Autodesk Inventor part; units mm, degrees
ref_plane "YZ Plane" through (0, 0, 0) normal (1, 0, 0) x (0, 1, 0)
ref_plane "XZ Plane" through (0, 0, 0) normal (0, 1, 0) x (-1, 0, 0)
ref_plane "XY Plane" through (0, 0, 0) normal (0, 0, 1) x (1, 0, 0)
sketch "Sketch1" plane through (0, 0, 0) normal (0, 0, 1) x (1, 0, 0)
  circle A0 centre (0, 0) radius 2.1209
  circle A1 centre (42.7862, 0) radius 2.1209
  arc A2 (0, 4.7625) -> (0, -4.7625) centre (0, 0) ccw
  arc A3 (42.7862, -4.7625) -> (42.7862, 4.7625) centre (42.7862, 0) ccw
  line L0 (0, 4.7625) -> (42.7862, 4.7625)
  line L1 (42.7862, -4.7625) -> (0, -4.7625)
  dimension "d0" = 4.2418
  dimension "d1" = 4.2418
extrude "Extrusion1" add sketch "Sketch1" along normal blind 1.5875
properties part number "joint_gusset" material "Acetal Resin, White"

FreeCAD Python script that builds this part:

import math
import FreeCAD as App
import Part
import Sketcher
from FreeCAD import Vector
Q = App.Units.Quantity

doc = App.newDocument("Part")
body = doc.addObject("PartDesign::Body", "Body")

sketch1 = body.newObject("Sketcher::SketchObject", "Sketch")
sketch1.AttachmentSupport = (doc.getObject("XY_Plane"), [""])
sketch1.MapMode = "FlatFace"
sketch1.addGeometry([
    Part.LineSegment(Vector(42.8, 4.8, 0), Vector(0, 4.8, 0)),
    Part.ArcOfCircle(Part.Circle(Vector(0, 0, 0), Vector(0, 0, 1), 4.8), math.radians(90), math.radians(270)),
    Part.LineSegment(Vector(0, -4.8, 0), Vector(42.8, -4.8, 0)),
    Part.ArcOfCircle(Part.Circle(Vector(42.8, 0, 0), Vector(0, 0, 1), 4.8), math.radians(-90), math.radians(90)),
    Part.Circle(Vector(0, 0, 0), Vector(0, 0, 1), 2.1),
    Part.Circle(Vector(42.8, 0, 0), Vector(0, 0, 1), 2.1),
], False)
sketch1.addConstraint([
    Sketcher.Constraint("Tangent", 0, 2, 1, 1),
    Sketcher.Constraint("Tangent", 1, 2, 2, 1),
    Sketcher.Constraint("Tangent", 2, 2, 3, 1),
    Sketcher.Constraint("Tangent", 3, 2, 0, 1),
    Sketcher.Constraint("Horizontal", 0),
    Sketcher.Constraint("Horizontal", 2),
    Sketcher.Constraint("Coincident", 1, 3, -1, 1),
    Sketcher.Constraint("Coincident", 4, 3, -1, 1),
    Sketcher.Constraint("Coincident", 5, 3, 3, 3),
    Sketcher.Constraint("Equal", 4, 5),
    Sketcher.Constraint("Diameter", 4, Q("0.167 in")),
    Sketcher.Constraint("Radius", 1, Q("0.1875 in")),
    Sketcher.Constraint("DistanceX", 0, 2, 0, 1, Q("1.6845 in")),
])
pad1 = body.newObject("PartDesign::Pad", "Pad")
pad1.Profile = sketch1
pad1.Length = Q("0.0625 in")

doc.recompute()
